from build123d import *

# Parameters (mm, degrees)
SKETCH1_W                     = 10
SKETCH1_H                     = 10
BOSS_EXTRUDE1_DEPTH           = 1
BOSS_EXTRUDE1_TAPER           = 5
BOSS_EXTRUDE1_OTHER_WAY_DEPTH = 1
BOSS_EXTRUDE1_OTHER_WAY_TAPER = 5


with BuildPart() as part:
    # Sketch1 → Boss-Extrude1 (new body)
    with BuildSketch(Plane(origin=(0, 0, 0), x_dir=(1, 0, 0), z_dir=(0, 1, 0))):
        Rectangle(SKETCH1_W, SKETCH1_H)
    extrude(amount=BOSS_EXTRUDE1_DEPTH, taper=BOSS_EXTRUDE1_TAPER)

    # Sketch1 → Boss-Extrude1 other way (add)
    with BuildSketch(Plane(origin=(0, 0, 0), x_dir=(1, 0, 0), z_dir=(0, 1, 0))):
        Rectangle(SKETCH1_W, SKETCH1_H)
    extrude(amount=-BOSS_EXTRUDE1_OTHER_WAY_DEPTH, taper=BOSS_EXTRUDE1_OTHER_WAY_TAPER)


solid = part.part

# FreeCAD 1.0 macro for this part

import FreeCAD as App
import Part
import Sketcher
from FreeCAD import Vector


def add_polygon(sketch, points):
    """Adds a closed chain of lines whose ends are joined by coincident constraints."""
    first, n = sketch.GeometryCount, len(points)
    for a, b in zip(points, points[1:] + points[:1]):
        sketch.addGeometry(Part.LineSegment(App.Vector(*a, 0), App.Vector(*b, 0)), False)
    for i in range(n):
        sketch.addConstraint(Sketcher.Constraint("Coincident", first + i, 2, first + (i + 1) % n, 1))

doc = App.newDocument("Part")
body = doc.addObject("PartDesign::Body", "Body")

# Sketch on XZ plane
sketch1 = doc.addObject("Sketcher::SketchObject", "Sketch")
body.addObject(sketch1)
sketch1.AttachmentSupport = (doc.XZ_Plane, [""])
sketch1.MapMode = "FlatFace"
add_polygon(sketch1, [(-5, -5), (-5, 5), (5, 5), (5, -5)])  # lines 0-3
sketch1.addConstraint(Sketcher.Constraint("Vertical", 0))
sketch1.addConstraint(Sketcher.Constraint("Horizontal", 1))
sketch1.addConstraint(Sketcher.Constraint("Vertical", 2))
sketch1.addConstraint(Sketcher.Constraint("Horizontal", 3))
sketch1.addConstraint(Sketcher.Constraint("Symmetric", 0, 2, 2, 2, -1, 1))
sketch1.addConstraint(Sketcher.Constraint("Equal", 3, 0))
sketch1.addConstraint(Sketcher.Constraint("DistanceX", 1, 1, 1, 2, 10.0))
pad1 = doc.addObject("PartDesign::Pad", "Pad")
body.addObject(pad1)
pad1.Profile = sketch1
pad1.Length = 1
pad1.Reversed = True
pad1.TaperAngle = -5

# Sketch on XZ plane
sketch2 = doc.addObject("Sketcher::SketchObject", "Sketch001")
body.addObject(sketch2)
sketch2.AttachmentSupport = (doc.XZ_Plane, [""])
sketch2.MapMode = "FlatFace"
add_polygon(sketch2, [(-5, -5), (-5, 5), (5, 5), (5, -5)])  # lines 0-3
sketch2.addConstraint(Sketcher.Constraint("Vertical", 0))
sketch2.addConstraint(Sketcher.Constraint("Horizontal", 1))
sketch2.addConstraint(Sketcher.Constraint("Vertical", 2))
sketch2.addConstraint(Sketcher.Constraint("Horizontal", 3))
sketch2.addConstraint(Sketcher.Constraint("Symmetric", 0, 2, 2, 2, -1, 1))
sketch2.addConstraint(Sketcher.Constraint("Equal", 3, 0))
sketch2.addConstraint(Sketcher.Constraint("DistanceX", 1, 1, 1, 2, 10.0))
pad2 = doc.addObject("PartDesign::Pad", "Pad001")
body.addObject(pad2)
pad2.Profile = sketch2
pad2.Length = 1
pad2.TaperAngle = -5

doc.recompute()
